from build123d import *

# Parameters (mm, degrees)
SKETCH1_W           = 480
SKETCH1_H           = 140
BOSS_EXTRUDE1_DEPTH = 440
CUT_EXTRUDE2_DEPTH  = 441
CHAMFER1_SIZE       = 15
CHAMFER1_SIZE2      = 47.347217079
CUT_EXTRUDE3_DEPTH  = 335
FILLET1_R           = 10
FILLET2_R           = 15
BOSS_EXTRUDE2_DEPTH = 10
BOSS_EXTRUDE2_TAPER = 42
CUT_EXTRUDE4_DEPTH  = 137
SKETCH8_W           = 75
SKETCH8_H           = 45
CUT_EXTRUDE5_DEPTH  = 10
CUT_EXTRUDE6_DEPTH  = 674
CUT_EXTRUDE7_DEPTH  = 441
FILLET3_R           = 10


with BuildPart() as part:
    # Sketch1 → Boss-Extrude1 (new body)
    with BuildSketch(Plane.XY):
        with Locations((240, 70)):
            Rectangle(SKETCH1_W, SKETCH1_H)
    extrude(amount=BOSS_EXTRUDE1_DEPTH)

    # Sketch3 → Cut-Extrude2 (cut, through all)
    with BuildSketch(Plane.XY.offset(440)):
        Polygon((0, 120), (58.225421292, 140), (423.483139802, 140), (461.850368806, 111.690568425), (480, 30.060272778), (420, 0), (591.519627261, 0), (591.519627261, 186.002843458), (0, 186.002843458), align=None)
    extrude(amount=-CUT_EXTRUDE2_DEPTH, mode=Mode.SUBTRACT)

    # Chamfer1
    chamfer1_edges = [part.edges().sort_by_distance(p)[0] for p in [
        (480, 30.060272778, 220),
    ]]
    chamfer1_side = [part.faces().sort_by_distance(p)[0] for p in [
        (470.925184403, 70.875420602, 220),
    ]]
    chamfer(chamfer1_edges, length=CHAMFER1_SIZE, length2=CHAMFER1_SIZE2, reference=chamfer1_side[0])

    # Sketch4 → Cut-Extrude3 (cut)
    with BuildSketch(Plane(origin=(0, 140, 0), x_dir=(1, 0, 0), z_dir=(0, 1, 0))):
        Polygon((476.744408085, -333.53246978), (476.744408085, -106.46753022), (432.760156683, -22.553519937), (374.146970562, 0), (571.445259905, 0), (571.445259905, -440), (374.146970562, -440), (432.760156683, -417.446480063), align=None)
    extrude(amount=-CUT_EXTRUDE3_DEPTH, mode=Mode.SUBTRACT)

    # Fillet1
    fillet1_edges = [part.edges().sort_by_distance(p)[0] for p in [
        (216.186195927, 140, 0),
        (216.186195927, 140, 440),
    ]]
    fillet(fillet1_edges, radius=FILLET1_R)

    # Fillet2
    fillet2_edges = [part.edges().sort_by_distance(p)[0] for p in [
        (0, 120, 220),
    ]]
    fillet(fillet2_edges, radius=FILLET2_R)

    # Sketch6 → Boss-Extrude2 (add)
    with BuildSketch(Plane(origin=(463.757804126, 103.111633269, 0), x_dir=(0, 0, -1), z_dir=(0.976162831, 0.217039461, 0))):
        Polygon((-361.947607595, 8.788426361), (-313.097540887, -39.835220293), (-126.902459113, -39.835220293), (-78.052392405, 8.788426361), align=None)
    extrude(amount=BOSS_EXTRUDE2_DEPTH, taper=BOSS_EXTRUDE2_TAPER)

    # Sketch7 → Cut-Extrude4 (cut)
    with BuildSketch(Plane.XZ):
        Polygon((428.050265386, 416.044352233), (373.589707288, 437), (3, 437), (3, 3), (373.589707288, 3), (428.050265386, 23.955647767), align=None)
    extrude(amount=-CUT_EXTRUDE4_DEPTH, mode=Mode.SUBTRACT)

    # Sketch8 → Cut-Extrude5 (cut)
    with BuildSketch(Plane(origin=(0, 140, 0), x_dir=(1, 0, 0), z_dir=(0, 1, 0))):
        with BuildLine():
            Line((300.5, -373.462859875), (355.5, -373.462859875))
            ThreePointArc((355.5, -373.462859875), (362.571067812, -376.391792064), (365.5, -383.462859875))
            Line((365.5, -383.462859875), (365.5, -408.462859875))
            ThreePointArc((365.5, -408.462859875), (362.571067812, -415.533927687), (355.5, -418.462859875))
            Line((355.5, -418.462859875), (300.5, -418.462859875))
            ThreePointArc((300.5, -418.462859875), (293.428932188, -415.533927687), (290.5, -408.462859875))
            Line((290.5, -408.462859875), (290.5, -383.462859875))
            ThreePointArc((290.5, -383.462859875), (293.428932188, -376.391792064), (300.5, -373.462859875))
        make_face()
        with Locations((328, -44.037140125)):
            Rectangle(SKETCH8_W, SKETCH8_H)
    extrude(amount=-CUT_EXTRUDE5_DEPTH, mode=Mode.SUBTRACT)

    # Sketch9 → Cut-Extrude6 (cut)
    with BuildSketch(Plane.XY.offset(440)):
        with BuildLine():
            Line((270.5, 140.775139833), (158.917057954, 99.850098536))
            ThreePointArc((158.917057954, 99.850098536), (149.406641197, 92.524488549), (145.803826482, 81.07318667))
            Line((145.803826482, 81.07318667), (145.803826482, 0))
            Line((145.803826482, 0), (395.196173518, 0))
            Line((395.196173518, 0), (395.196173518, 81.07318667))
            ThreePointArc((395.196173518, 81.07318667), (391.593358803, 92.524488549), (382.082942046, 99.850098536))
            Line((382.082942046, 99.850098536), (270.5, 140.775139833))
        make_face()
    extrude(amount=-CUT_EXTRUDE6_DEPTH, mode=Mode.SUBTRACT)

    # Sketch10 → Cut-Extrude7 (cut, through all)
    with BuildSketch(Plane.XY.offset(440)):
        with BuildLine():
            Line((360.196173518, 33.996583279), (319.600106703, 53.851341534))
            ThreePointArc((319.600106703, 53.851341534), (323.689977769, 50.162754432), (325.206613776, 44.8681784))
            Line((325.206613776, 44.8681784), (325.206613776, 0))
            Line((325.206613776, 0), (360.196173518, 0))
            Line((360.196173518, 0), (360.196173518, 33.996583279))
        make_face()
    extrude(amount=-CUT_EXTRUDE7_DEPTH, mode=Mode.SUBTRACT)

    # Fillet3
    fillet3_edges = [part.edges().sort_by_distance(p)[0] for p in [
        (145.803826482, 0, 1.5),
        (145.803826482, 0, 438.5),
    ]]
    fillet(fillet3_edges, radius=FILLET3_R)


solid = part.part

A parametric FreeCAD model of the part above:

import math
import FreeCAD as App
import Part
import Sketcher

V = App.Vector
Q = App.Units.Quantity


def edges_at(feature, points):
    """Names of the edges that pass closest to the given points."""
    edges = feature.Shape.Edges
    near = lambda p: min(range(len(edges)), key=lambda i: edges[i].distToShape(Part.Vertex(*p))[0])
    return sorted({f"Edge{near(p) + 1}" for p in points})


def add_polygon(sketch, points):
    """Adds a closed chain of lines whose ends are joined by coincident constraints."""
    first, n = sketch.GeometryCount, len(points)
    for a, b in zip(points, points[1:] + points[:1]):
        sketch.addGeometry(Part.LineSegment(App.Vector(*a, 0), App.Vector(*b, 0)), False)
    for i in range(n):
        sketch.addConstraint(Sketcher.Constraint("Coincident", first + i, 2, first + (i + 1) % n, 1))

doc = App.newDocument("Part")
body = doc.addObject("PartDesign::Body", "Body")
body.AllowCompound = True

# Sketch on XY plane
sketch1 = body.newObject("Sketcher::SketchObject", "Sketch")
sketch1.AttachmentSupport = (doc.getObject("XY_Plane"), [""])
sketch1.MapMode = "FlatFace"
add_polygon(sketch1, [(0, 140), (0, 0), (480, 0), (480, 140)])  # lines 0-3
sketch1.addConstraint(Sketcher.Constraint("Vertical", 0))
sketch1.addConstraint(Sketcher.Constraint("Horizontal", 1))
sketch1.addConstraint(Sketcher.Constraint("Vertical", 2))
sketch1.addConstraint(Sketcher.Constraint("Horizontal", 3))
sketch1.addConstraint(Sketcher.Constraint("Coincident", 0, 2, -1, 1))
sketch1.addConstraint(Sketcher.Constraint("DistanceX", 1, 1, 1, 2, Q("480 mm")))
sketch1.addConstraint(Sketcher.Constraint("DistanceY", 0, 2, 0, 1, Q("140 mm")))
pad1 = body.newObject("PartDesign::Pad", "Pad")
pad1.Profile = sketch1
pad1.Length = 440

# Sketch on XY plane
sketch2 = body.newObject("Sketcher::SketchObject", "Sketch001")
sketch2.AttachmentSupport = (doc.getObject("XY_Plane"), [""])
sketch2.MapMode = "FlatFace"
sketch2.AttachmentOffset = App.Placement(V(0, 0, 440), App.Rotation())
add_polygon(sketch2, [(0, 120), (58, 140), (423, 140), (462, 112), (480, 30), (420, 0), (592, 0), (592, 186), (0, 186)])  # lines 0-8
sketch2.addConstraint(Sketcher.Constraint("Horizontal", 1))
sketch2.addConstraint(Sketcher.Constraint("Horizontal", 5))
sketch2.addConstraint(Sketcher.Constraint("Vertical", 6))
sketch2.addConstraint(Sketcher.Constraint("Horizontal", 7))
sketch2.addConstraint(Sketcher.Constraint("Vertical", 8))
sketch2.addConstraint(Sketcher.Constraint("PointOnObject", 4, 2, -1))
sketch2.addConstraint(Sketcher.Constraint("PointOnObject", 7, 2, -2))
sketch2.addConstraint(Sketcher.Constraint("DistanceY", -1, 1, 0, 2, Q("140 mm")))
sketch2.addConstraint(Sketcher.Constraint("DistanceX", -1, 1, 3, 2, Q("480 mm")))
sketch2.addConstraint(Sketcher.Constraint("DistanceX", -1, 1, 4, 2, Q("420 mm")))
sketch2.addConstraint(Sketcher.Constraint("DistanceY", -1, 1, 8, 2, Q("120 mm")))
sketch2.addConstraint(Sketcher.Constraint("Distance", 2, Q("47.6809 mm")))
sketch2.addConstraint(Sketcher.Constraint("DistanceX", 1, 1, 1, 2, Q("365.257719 mm")))
sketch2.addConstraint(Sketcher.Constraint("DistanceX", 5, 1, 5, 2, Q("171.519627 mm")))
sketch2.addConstraint(Sketcher.Constraint("DistanceY", 6, 1, 6, 2, Q("186.002843 mm")))
sketch2.addConstraint(Sketcher.Constraint("DistanceX", -1, 1, 0, 2, Q("58.225421 mm")))
sketch2.addConstraint(Sketcher.Constraint("DistanceX", -1, 1, 2, 2, Q("461.850369 mm")))
sketch2.addConstraint(Sketcher.Constraint("DistanceY", 3, 2, 6, 2, Q("155.942571 mm")))
pocket1 = body.newObject("PartDesign::Pocket", "Pocket")
pocket1.Profile = sketch2
pocket1.Type = "ThroughAll"
doc.recompute()

chamfer = body.newObject("PartDesign::Chamfer", "Chamfer")
chamfer.Base = (pocket1, edges_at(pocket1, [(480, 30.06, 220)]))
chamfer.ChamferType = "Two distances"
chamfer.Size = 15
chamfer.Size2 = 47.347217

# Sketch on XZ plane
sketch3 = body.newObject("Sketcher::SketchObject", "Sketch002")
sketch3.AttachmentSupport = (doc.getObject("XZ_Plane"), [""])
sketch3.MapMode = "FlatFace"
sketch3.AttachmentOffset = App.Placement(V(0, 0, -140), App.Rotation())
add_polygon(sketch3, [(477, 106), (477, 334), (433, 417), (374, 440), (571, 440), (571, 0), (374, 0), (433, 23)])  # lines 0-7
sketch3.addConstraint(Sketcher.Constraint("Vertical", 0))
sketch3.addConstraint(Sketcher.Constraint("Horizontal", 3))
sketch3.addConstraint(Sketcher.Constraint("Vertical", 4))
sketch3.addConstraint(Sketcher.Constraint("Horizontal", 5))
sketch3.addConstraint(Sketcher.Constraint("PointOnObject", 4, 2, -1))
sketch3.addConstraint(Sketcher.Constraint("Vertical", 2, 2, 5, 2))
sketch3.addConstraint(Sketcher.Constraint("Vertical", 1, 2, 6, 2))
sketch3.addConstraint(Sketcher.Constraint("Equal", 2, 6))
sketch3.addConstraint(Sketcher.Constraint("Equal", 1, 7))
sketch3.addConstraint(Sketcher.Constraint("DistanceY", 4, 2, 4, 1, Q("440 mm")))
sketch3.addConstraint(Sketcher.Constraint("DistanceX", 3, 1, 3, 2, Q("197.298289 mm")))
sketch3.addConstraint(Sketcher.Constraint("DistanceY", 0, 1, 0, 2, Q("227.06494 mm")))
sketch3.addConstraint(Sketcher.Constraint("Distance", 1, Q("94.74268 mm")))
sketch3.addConstraint(Sketcher.Constraint("DistanceX", -1, 1, 0, 2, Q("476.744408 mm")))
sketch3.addConstraint(Sketcher.Constraint("DistanceY", -1, 1, 1, 2, Q("417.44648 mm")))
sketch3.addConstraint(Sketcher.Constraint("DistanceX", -1, 1, 2, 2, Q("374.146971 mm")))
pocket2 = body.newObject("PartDesign::Pocket", "Pocket001")
pocket2.Profile = sketch3
pocket2.Length = 335
pocket2.Reversed = True
doc.recompute()

fillet = body.newObject("PartDesign::Fillet", "Fillet")
fillet.Base = (pocket2, edges_at(pocket2, [(216.186, 140, 0), (216.186, 140, 440)]))
fillet.Radius = 10
doc.recompute()

fillet2 = body.newObject("PartDesign::Fillet", "Fillet001")
fillet2.Base = (fillet, edges_at(fillet, [(0, 120, 220)]))
fillet2.Radius = 15

# Sketch on an angled plane
sketch4 = body.newObject("Sketcher::SketchObject", "Sketch003")
sketch4.Placement = App.Placement(V(463.757804, 103.111633, 0), App.Rotation(V(0, 0, -1), V(-0.217039461, 0.976162831, 0), V(0.976162831, 0.217039461, 0), "ZXY"))
add_polygon(sketch4, [(-362, 9), (-313, -40), (-127, -40), (-78, 9)])  # lines 0-3
sketch4.addConstraint(Sketcher.Constraint("Horizontal", 1))
sketch4.addConstraint(Sketcher.Constraint("Horizontal", 3))
sketch4.addConstraint(Sketcher.Constraint("Equal", 0, 2))
sketch4.addConstraint(Sketcher.Constraint("DistanceX", 1, 1, 1, 2, Q("186.195082 mm")))
sketch4.addConstraint(Sketcher.Constraint("Distance", 0, Q("68.92451 mm")))
sketch4.addConstraint(Sketcher.Constraint("DistanceX", 3, 2, 3, 1, Q("283.895215 mm")))
sketch4.addConstraint(Sketcher.Constraint("DistanceX", 0, 2, -1, 1, Q("313.097541 mm")))
sketch4.addConstraint(Sketcher.Constraint("DistanceY", 0, 2, -1, 1, Q("39.83522 mm")))
pad2 = body.newObject("PartDesign::Pad", "Pad001")
pad2.Profile = sketch4
pad2.Length = 10
pad2.TaperAngle = -42

# Sketch on XZ plane
sketch5 = body.newObject("Sketcher::SketchObject", "Sketch004")
sketch5.AttachmentSupport = (doc.getObject("XZ_Plane"), [""])
sketch5.MapMode = "FlatFace"
add_polygon(sketch5, [(428, 416), (374, 437), (3, 437), (3, 3), (374, 3), (428, 24)])  # lines 0-5
sketch5.addConstraint(Sketcher.Constraint("Horizontal", 1))
sketch5.addConstraint(Sketcher.Constraint("Vertical", 2))
sketch5.addConstraint(Sketcher.Constraint("Horizontal", 3))
sketch5.addConstraint(Sketcher.Constraint("Vertical", 5))
sketch5.addConstraint(Sketcher.Constraint("Vertical", 0, 2, 3, 2))
sketch5.addConstraint(Sketcher.Constraint("Equal", 0, 4))
sketch5.addConstraint(Sketcher.Constraint("DistanceY", 2, 2, 2, 1, Q("434 mm")))
sketch5.addConstraint(Sketcher.Constraint("DistanceY", -1, 1, 0, 2, Q("437 mm")))
sketch5.addConstraint(Sketcher.Constraint("DistanceX", -1, 1, 1, 2, Q("3 mm")))
sketch5.addConstraint(Sketcher.Constraint("DistanceX", 1, 2, 1, 1, Q("370.589707 mm")))
sketch5.addConstraint(Sketcher.Constraint("DistanceY", 5, 1, 5, 2, Q("392.088704 mm")))
sketch5.addConstraint(Sketcher.Constraint("DistanceX", 3, 2, 4, 2, Q("54.460558 mm")))
pocket3 = body.newObject("PartDesign::Pocket", "Pocket002")
pocket3.Profile = sketch5
pocket3.Length = 137

# Sketch on XZ plane
sketch6 = body.newObject("Sketcher::SketchObject", "Sketch005")
sketch6.AttachmentSupport = (doc.getObject("XZ_Plane"), [""])
sketch6.MapMode = "FlatFace"
sketch6.AttachmentOffset = App.Placement(V(0, 0, -140), App.Rotation())
sketch6.addGeometry(Part.LineSegment(V(356, 373, 0), V(300, 373, 0)), False)  # 0
sketch6.addGeometry(Part.ArcOfCircle(Part.Circle(V(301, 383, 0), V(0, 0, 1), 10), math.radians(-180), math.radians(-90)), False)  # 1
sketch6.addGeometry(Part.LineSegment(V(290, 383, 0), V(290, 408, 0)), False)  # 2
sketch6.addGeometry(Part.ArcOfCircle(Part.Circle(V(300, 408, 0), V(0, 0, 1), 10), math.radians(90), math.radians(180)), False)  # 3
sketch6.addGeometry(Part.LineSegment(V(300, 418, 0), V(356, 418, 0)), False)  # 4
sketch6.addGeometry(Part.ArcOfCircle(Part.Circle(V(356, 408, 0), V(0, 0, 1), 10), math.radians(0), math.radians(90)), False)  # 5
sketch6.addGeometry(Part.LineSegment(V(366, 408, 0), V(366, 383, 0)), False)  # 6
sketch6.addGeometry(Part.ArcOfCircle(Part.Circle(V(355, 383, 0), V(0, 0, 1), 10), math.radians(-90), math.radians(0)), False)  # 7
add_polygon(sketch6, [(290, 22), (290, 67), (366, 67), (366, 22)])  # lines 8-11
sketch6.addConstraint(Sketcher.Constraint("Tangent", 0, 2, 1, 2))
sketch6.addConstraint(Sketcher.Constraint("Tangent", 1, 1, 2, 1))
sketch6.addConstraint(Sketcher.Constraint("Tangent", 2, 2, 3, 2))
sketch6.addConstraint(Sketcher.Constraint("Tangent", 3, 1, 4, 1))
sketch6.addConstraint(Sketcher.Constraint("Tangent", 4, 2, 5, 2))
sketch6.addConstraint(Sketcher.Constraint("Tangent", 5, 1, 6, 1))
sketch6.addConstraint(Sketcher.Constraint("Tangent", 6, 2, 7, 2))
sketch6.addConstraint(Sketcher.Constraint("Tangent", 7, 1, 0, 1))
sketch6.addConstraint(Sketcher.Constraint("Horizontal", 0))
sketch6.addConstraint(Sketcher.Constraint("Vertical", 2))
sketch6.addConstraint(Sketcher.Constraint("Horizontal", 4))
sketch6.addConstraint(Sketcher.Constraint("Vertical", 6))
sketch6.addConstraint(Sketcher.Constraint("Vertical", 8))
sketch6.addConstraint(Sketcher.Constraint("Horizontal", 9))
sketch6.addConstraint(Sketcher.Constraint("Vertical", 10))
sketch6.addConstraint(Sketcher.Constraint("Horizontal", 11))
sketch6.addConstraint(Sketcher.Constraint("Equal", 1, 3))
sketch6.addConstraint(Sketcher.Constraint("Equal", 3, 5))
sketch6.addConstraint(Sketcher.Constraint("Equal", 5, 7))
sketch6.addConstraint(Sketcher.Constraint("Vertical", 2, 2, 8, 2))
sketch6.addConstraint(Sketcher.Constraint("Vertical", 6, 2, 9, 2))
sketch6.addConstraint(Sketcher.Constraint("Radius", 1, Q("10 mm")))
sketch6.addConstraint(Sketcher.Constraint("DistanceX", 0, 2, 0, 1, Q("55 mm")))
sketch6.addConstraint(Sketcher.Constraint("DistanceY", 2, 1, 2, 2, Q("25 mm")))
sketch6.addConstraint(Sketcher.Constraint("DistanceY", 8, 1, 8, 2, Q("45 mm")))
sketch6.addConstraint(Sketcher.Constraint("DistanceX", -1, 1, 1, 3, Q("300.5 mm")))
sketch6.addConstraint(Sketcher.Constraint("DistanceY", -1, 1, 1, 3, Q("383.46286 mm")))
sketch6.addConstraint(Sketcher.Constraint("DistanceY", -1, 1, 8, 2, Q("66.53714 mm")))
pocket4 = body.newObject("PartDesign::Pocket", "Pocket003")
pocket4.Profile = sketch6
pocket4.Length = 10
pocket4.Reversed = True

# Sketch on XY plane
sketch7 = body.newObject("Sketcher::SketchObject", "Sketch006")
sketch7.AttachmentSupport = (doc.getObject("XY_Plane"), [""])
sketch7.MapMode = "FlatFace"
sketch7.AttachmentOffset = App.Placement(V(0, 0, 440), App.Rotation())
sketch7.addGeometry(Part.LineSegment(V(270, 141, 0), V(159, 100, 0)), False)
sketch7.addGeometry(Part.ArcOfCircle(Part.Circle(V(166, 81, 0), V(0, 0, 1), 20), math.radians(110), math.radians(180)), False)
sketch7.addGeometry(Part.LineSegment(V(146, 81, 0), V(146, 0, 0)), False)
sketch7.addGeometry(Part.LineSegment(V(146, 0, 0), V(395, 0, 0)), False)
sketch7.addGeometry(Part.LineSegment(V(395, 0, 0), V(395, 81, 0)), False)
sketch7.addGeometry(Part.ArcOfCircle(Part.Circle(V(375, 81, 0), V(0, 0, 1), 20), math.radians(0), math.radians(70)), False)
sketch7.addGeometry(Part.LineSegment(V(382, 100, 0), V(270, 141, 0)), False)
sketch7.addConstraint(Sketcher.Constraint("Tangent", 0, 2, 1, 1))
sketch7.addConstraint(Sketcher.Constraint("Tangent", 1, 2, 2, 1))
sketch7.addConstraint(Sketcher.Constraint("Coincident", 2, 2, 3, 1))
sketch7.addConstraint(Sketcher.Constraint("Coincident", 3, 2, 4, 1))
sketch7.addConstraint(Sketcher.Constraint("Tangent", 4, 2, 5, 1))
sketch7.addConstraint(Sketcher.Constraint("Tangent", 5, 2, 6, 1))
sketch7.addConstraint(Sketcher.Constraint("Coincident", 6, 2, 0, 1))
sketch7.addConstraint(Sketcher.Constraint("Vertical", 2))
sketch7.addConstraint(Sketcher.Constraint("Horizontal", 3))
sketch7.addConstraint(Sketcher.Constraint("Vertical", 4))
sketch7.addConstraint(Sketcher.Constraint("Equal", 1, 5))
sketch7.addConstraint(Sketcher.Constraint("PointOnObject", 2, 2, -1))
sketch7.addConstraint(Sketcher.Constraint("Horizontal", 1, 3, 5, 3))
sketch7.addConstraint(Sketcher.Constraint("Horizontal", 0, 2, 5, 2))
sketch7.addConstraint(Sketcher.Constraint("Radius", 1, Q("20 mm")))
sketch7.addConstraint(Sketcher.Constraint("DistanceX", -1, 1, 6, 2, Q("270.5 mm")))
sketch7.addConstraint(Sketcher.Constraint("DistanceY", -1, 1, 0, 2, Q("99.850099 mm")))
sketch7.addConstraint(Sketcher.Constraint("DistanceX", 3, 1, 3, 2, Q("249.392347 mm")))
sketch7.addConstraint(Sketcher.Constraint("DistanceY", 2, 2, 2, 1, Q("81.073187 mm")))
pocket5 = body.newObject("PartDesign::Pocket", "Pocket004")
pocket5.Profile = sketch7
pocket5.Length = 674

# Sketch on XY plane
sketch8 = body.newObject("Sketcher::SketchObject", "Sketch007")
sketch8.AttachmentSupport = (doc.getObject("XY_Plane"), [""])
sketch8.MapMode = "FlatFace"
sketch8.AttachmentOffset = App.Placement(V(0, 0, 440), App.Rotation())
sketch8.addGeometry(Part.LineSegment(V(360, 34, 0), V(320, 54, 0)), False)
sketch8.addGeometry(Part.ArcOfCircle(Part.Circle(V(315, 45, 0), V(0, 0, 1), 10), math.radians(0), math.radians(64)), False)
sketch8.addGeometry(Part.LineSegment(V(325, 45, 0), V(325, 0, 0)), False)
sketch8.addGeometry(Part.LineSegment(V(325, 0, 0), V(360, 0, 0)), False)
sketch8.addGeometry(Part.LineSegment(V(360, 0, 0), V(360, 34, 0)), False)
sketch8.addConstraint(Sketcher.Constraint("Tangent", 0, 2, 1, 2))
sketch8.addConstraint(Sketcher.Constraint("Tangent", 1, 1, 2, 1))
sketch8.addConstraint(Sketcher.Constraint("Coincident", 2, 2, 3, 1))
sketch8.addConstraint(Sketcher.Constraint("Coincident", 3, 2, 4, 1))
sketch8.addConstraint(Sketcher.Constraint("Coincident", 4, 2, 0, 1))
sketch8.addConstraint(Sketcher.Constraint("Vertical", 2))
sketch8.addConstraint(Sketcher.Constraint("Horizontal", 3))
sketch8.addConstraint(Sketcher.Constraint("Vertical", 4))
sketch8.addConstraint(Sketcher.Constraint("PointOnObject", 2, 2, -1))
sketch8.addConstraint(Sketcher.Constraint("Radius", 1, Q("10 mm")))
sketch8.addConstraint(Sketcher.Constraint("DistanceX", 3, 1, 3, 2, Q("34.98956 mm")))
sketch8.addConstraint(Sketcher.Constraint("DistanceY", 2, 2, 2, 1, Q("44.868178 mm")))
sketch8.addConstraint(Sketcher.Constraint("DistanceY", 4, 1, 4, 2, Q("33.996583 mm")))
sketch8.addConstraint(Sketcher.Constraint("DistanceX", -1, 1, 1, 3, Q("315.206614 mm")))
pocket6 = body.newObject("PartDesign::Pocket", "Pocket005")
pocket6.Profile = sketch8
pocket6.Type = "ThroughAll"
doc.recompute()

fillet3 = body.newObject("PartDesign::Fillet", "Fillet002")
fillet3.Base = (pocket6, edges_at(pocket6, [(145.804, 0, 1.5), (145.804, 0, 438.5)]))
fillet3.Radius = 10

doc.recompute()
